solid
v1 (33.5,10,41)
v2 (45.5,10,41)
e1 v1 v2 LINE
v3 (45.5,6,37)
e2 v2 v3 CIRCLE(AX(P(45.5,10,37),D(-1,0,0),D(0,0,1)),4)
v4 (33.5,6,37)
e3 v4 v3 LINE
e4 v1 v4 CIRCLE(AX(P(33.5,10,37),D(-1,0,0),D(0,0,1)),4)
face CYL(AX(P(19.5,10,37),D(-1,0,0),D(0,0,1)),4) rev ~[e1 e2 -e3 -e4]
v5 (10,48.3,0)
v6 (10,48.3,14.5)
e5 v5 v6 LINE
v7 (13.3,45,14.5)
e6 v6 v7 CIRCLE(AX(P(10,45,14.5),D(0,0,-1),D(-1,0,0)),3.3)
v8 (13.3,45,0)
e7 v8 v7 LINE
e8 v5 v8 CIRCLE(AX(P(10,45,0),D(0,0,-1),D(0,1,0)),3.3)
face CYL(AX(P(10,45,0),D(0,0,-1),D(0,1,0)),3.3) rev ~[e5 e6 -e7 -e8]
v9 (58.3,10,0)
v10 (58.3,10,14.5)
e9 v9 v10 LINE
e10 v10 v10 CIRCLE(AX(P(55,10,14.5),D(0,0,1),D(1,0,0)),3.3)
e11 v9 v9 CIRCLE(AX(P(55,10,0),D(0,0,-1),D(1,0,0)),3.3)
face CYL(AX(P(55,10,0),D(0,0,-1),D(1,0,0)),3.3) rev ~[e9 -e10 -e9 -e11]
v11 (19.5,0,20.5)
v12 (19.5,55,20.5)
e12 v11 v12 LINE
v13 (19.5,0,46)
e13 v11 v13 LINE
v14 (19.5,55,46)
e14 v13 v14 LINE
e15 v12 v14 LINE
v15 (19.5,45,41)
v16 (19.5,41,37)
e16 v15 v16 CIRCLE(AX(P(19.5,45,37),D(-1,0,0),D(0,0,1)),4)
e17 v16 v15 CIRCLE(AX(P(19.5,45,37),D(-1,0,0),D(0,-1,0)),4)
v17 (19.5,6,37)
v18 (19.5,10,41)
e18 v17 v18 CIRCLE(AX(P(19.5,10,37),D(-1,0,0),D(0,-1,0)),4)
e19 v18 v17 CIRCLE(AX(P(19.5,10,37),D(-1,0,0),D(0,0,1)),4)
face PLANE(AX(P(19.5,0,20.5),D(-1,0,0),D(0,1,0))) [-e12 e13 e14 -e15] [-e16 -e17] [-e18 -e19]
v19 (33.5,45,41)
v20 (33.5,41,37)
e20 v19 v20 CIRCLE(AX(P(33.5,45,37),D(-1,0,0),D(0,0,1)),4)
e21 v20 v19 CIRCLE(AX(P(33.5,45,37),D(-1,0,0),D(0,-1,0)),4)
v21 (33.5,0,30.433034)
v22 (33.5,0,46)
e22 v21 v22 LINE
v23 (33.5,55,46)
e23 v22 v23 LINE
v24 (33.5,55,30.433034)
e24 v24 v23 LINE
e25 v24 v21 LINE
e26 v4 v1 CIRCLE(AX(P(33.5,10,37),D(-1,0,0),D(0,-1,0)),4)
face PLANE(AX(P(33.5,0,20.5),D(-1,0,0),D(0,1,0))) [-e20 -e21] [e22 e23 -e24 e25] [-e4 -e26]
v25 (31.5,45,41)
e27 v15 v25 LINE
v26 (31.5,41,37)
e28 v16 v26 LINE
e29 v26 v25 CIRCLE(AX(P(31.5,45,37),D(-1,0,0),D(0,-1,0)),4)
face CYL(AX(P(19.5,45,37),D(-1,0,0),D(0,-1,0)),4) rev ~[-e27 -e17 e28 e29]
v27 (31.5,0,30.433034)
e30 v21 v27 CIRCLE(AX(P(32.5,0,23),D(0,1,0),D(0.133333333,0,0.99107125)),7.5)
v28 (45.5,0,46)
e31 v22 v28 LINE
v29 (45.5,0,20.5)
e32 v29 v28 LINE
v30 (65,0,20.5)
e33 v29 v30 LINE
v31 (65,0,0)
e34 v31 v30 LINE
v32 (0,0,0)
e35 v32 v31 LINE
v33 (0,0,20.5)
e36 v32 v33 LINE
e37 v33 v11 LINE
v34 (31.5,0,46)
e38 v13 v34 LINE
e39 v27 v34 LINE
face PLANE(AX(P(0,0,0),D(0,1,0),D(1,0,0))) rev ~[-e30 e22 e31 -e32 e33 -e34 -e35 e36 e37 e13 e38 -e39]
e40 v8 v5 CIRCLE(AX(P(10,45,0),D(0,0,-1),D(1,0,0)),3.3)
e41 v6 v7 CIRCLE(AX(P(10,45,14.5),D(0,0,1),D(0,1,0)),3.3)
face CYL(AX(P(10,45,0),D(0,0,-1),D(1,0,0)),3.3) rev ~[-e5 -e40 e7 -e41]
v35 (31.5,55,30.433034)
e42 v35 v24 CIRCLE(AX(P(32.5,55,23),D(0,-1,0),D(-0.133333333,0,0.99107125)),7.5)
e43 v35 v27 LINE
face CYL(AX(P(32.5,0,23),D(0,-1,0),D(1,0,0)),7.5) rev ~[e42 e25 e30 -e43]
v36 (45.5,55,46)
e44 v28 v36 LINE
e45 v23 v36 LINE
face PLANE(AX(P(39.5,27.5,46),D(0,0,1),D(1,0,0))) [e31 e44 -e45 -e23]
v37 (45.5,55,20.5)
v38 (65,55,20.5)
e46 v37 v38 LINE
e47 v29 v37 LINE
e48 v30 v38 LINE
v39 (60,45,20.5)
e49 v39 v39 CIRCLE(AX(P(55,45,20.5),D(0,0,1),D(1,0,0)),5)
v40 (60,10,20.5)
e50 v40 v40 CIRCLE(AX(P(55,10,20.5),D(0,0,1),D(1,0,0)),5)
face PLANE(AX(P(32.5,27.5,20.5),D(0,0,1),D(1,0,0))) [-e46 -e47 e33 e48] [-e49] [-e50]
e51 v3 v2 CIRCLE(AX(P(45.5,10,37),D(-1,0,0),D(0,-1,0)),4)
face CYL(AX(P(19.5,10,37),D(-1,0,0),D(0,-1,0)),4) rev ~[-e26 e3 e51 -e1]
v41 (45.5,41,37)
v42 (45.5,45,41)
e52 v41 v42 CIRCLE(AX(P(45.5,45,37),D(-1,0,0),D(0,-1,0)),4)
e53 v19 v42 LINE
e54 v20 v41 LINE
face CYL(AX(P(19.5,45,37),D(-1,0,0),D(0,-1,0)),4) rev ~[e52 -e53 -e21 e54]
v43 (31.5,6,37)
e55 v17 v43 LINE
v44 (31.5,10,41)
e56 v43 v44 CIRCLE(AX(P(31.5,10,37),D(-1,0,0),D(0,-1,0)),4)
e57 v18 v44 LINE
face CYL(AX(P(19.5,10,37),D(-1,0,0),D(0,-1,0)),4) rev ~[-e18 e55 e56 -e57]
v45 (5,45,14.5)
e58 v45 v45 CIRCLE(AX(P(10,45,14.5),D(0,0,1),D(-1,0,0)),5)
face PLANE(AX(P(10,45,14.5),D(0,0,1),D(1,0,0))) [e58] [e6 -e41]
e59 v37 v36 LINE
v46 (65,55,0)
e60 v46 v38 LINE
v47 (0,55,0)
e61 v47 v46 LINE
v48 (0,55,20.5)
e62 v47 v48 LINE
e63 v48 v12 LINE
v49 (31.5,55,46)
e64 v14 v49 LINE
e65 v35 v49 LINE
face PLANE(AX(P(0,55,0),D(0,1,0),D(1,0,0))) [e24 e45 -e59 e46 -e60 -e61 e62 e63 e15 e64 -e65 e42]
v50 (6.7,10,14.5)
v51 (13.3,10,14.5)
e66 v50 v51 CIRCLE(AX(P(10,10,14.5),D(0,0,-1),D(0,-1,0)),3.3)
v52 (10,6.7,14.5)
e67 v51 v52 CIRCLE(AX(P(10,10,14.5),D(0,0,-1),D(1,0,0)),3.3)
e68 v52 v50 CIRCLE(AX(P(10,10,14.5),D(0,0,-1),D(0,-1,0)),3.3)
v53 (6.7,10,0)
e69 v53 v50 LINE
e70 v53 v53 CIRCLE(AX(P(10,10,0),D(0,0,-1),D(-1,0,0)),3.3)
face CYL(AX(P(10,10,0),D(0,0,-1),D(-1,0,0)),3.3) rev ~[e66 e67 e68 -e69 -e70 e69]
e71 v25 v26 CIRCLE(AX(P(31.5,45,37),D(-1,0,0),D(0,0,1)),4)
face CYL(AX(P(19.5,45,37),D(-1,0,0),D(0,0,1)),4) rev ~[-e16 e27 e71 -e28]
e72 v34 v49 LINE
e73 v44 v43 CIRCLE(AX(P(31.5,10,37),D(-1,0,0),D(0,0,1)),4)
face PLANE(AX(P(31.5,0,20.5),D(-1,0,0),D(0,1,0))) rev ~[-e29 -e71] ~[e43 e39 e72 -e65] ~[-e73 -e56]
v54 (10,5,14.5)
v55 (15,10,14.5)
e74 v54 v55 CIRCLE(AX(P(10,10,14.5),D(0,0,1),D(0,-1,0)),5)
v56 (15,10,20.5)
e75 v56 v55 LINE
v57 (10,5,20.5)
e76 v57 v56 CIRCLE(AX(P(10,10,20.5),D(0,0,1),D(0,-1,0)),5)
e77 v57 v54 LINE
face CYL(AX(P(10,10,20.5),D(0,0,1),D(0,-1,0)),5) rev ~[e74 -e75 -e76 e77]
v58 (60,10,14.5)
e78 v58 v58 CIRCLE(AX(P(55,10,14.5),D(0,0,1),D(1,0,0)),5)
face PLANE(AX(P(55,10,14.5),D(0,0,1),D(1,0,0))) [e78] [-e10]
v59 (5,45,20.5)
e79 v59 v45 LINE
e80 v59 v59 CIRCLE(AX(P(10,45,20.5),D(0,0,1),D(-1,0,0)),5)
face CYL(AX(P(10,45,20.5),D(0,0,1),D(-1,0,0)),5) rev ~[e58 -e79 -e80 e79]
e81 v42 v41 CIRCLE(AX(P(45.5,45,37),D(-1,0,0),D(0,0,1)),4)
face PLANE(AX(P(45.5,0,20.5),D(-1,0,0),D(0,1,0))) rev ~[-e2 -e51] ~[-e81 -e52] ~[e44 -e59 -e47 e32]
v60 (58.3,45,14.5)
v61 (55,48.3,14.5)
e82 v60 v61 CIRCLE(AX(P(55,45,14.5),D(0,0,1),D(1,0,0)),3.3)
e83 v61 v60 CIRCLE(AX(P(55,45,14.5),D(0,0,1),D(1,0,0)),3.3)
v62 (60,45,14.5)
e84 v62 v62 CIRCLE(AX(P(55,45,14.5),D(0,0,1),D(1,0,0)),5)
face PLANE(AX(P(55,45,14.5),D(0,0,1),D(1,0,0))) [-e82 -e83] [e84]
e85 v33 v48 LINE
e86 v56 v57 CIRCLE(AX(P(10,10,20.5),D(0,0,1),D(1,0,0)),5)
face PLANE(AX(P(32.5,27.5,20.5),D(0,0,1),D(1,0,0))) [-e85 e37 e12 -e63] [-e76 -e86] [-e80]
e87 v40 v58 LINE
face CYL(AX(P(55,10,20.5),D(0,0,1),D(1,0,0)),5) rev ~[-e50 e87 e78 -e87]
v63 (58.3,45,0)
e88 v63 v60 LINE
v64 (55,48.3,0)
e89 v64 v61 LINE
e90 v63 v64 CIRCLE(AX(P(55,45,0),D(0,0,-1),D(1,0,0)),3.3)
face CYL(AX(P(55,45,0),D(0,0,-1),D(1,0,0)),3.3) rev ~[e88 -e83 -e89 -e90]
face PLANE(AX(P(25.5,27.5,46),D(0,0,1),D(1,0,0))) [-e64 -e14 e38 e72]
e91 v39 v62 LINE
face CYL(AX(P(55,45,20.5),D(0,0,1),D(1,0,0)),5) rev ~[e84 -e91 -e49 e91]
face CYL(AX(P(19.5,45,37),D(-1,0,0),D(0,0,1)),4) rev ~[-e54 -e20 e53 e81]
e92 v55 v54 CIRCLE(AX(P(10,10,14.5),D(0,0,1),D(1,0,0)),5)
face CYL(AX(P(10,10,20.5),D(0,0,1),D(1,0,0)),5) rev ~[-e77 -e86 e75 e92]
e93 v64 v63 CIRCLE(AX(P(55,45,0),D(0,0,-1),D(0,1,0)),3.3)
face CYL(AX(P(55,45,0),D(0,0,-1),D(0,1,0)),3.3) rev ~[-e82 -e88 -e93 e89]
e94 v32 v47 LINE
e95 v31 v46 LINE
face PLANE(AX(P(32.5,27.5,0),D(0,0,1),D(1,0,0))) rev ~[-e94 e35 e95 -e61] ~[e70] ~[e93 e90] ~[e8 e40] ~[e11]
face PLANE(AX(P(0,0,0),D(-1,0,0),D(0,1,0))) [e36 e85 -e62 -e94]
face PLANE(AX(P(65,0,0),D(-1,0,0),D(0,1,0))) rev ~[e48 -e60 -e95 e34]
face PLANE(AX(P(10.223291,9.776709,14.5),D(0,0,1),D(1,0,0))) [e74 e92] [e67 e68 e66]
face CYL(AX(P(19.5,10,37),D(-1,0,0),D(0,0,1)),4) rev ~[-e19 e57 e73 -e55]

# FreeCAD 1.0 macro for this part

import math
import FreeCAD as App
import Part
import Sketcher
from FreeCAD import Vector
Q = App.Units.Quantity

doc = App.newDocument("Part")
body = doc.addObject("PartDesign::Body", "Body")

# Sketch on XY plane
sketch1 = doc.addObject("Sketcher::SketchObject", "Sketch")
body.addObject(sketch1)
sketch1.AttachmentSupport = (doc.XY_Plane, [""])
sketch1.MapMode = "FlatFace"
sketch1.addGeometry([
    Part.LineSegment(Vector(0, 55, 0), Vector(0, 0, 0)),
    Part.LineSegment(Vector(0, 0, 0), Vector(65, 0, 0)),
    Part.LineSegment(Vector(65, 0, 0), Vector(65, 55, 0)),
    Part.LineSegment(Vector(65, 55, 0), Vector(0, 55, 0)),
], False)
sketch1.addConstraint([
    Sketcher.Constraint("Coincident", 0, 2, 1, 1),
    Sketcher.Constraint("Coincident", 1, 2, 2, 1),
    Sketcher.Constraint("Coincident", 2, 2, 3, 1),
    Sketcher.Constraint("Coincident", 3, 2, 0, 1),
    Sketcher.Constraint("Vertical", 0),
    Sketcher.Constraint("Horizontal", 1),
    Sketcher.Constraint("Vertical", 2),
    Sketcher.Constraint("Horizontal", 3),
    Sketcher.Constraint("Coincident", 0, 2, -1, 1),
    Sketcher.Constraint("DistanceX", 1, 1, 1, 2, Q("65 mm")),
    Sketcher.Constraint("DistanceY", 0, 2, 0, 1, Q("55 mm")),
])
pad1 = doc.addObject("PartDesign::Pad", "Pad")
body.addObject(pad1)
pad1.Profile = sketch1
pad1.Length = 20.5

# Sketch on XY plane
sketch2 = doc.addObject("Sketcher::SketchObject", "Sketch001")
body.addObject(sketch2)
sketch2.AttachmentSupport = (doc.XY_Plane, [""])
sketch2.MapMode = "FlatFace"
sketch2.AttachmentOffset = App.Placement(Vector(0, 0, 20.5), App.Rotation())
sketch2.addGeometry([
    Part.LineSegment(Vector(20, 55, 0), Vector(20, 0, 0)),  # 0
    Part.LineSegment(Vector(20, 0, 0), Vector(32, 0, 0)),  # 1
    Part.LineSegment(Vector(32, 0, 0), Vector(32, 55, 0)),  # 2
    Part.LineSegment(Vector(32, 55, 0), Vector(20, 55, 0)),  # 3
    Part.LineSegment(Vector(34, 55, 0), Vector(34, 0, 0)),  # 4
    Part.LineSegment(Vector(34, 0, 0), Vector(46, 0, 0)),  # 5
    Part.LineSegment(Vector(46, 0, 0), Vector(46, 55, 0)),  # 6
    Part.LineSegment(Vector(46, 55, 0), Vector(34, 55, 0)),  # 7
], False)
sketch2.addConstraint([
    Sketcher.Constraint("Coincident", 0, 2, 1, 1),
    Sketcher.Constraint("Coincident", 1, 2, 2, 1),
    Sketcher.Constraint("Coincident", 2, 2, 3, 1),
    Sketcher.Constraint("Coincident", 3, 2, 0, 1),
    Sketcher.Constraint("Coincident", 4, 2, 5, 1),
    Sketcher.Constraint("Coincident", 5, 2, 6, 1),
    Sketcher.Constraint("Coincident", 6, 2, 7, 1),
    Sketcher.Constraint("Coincident", 7, 2, 4, 1),
    Sketcher.Constraint("Vertical", 0),
    Sketcher.Constraint("Horizontal", 1),
    Sketcher.Constraint("Vertical", 2),
    Sketcher.Constraint("Horizontal", 3),
    Sketcher.Constraint("Vertical", 4),
    Sketcher.Constraint("Horizontal", 5),
    Sketcher.Constraint("Vertical", 6),
    Sketcher.Constraint("Horizontal", 7),
    Sketcher.Constraint("PointOnObject", 0, 2, -1),
    Sketcher.Constraint("PointOnObject", 4, 2, -1),
    Sketcher.Constraint("Horizontal", 3, 2, 6, 2),
    Sketcher.Constraint("Equal", 3, 5),
    Sketcher.Constraint("DistanceX", 1, 1, 1, 2, Q("12 mm")),
    Sketcher.Constraint("DistanceY", 0, 2, 0, 1, Q("55 mm")),
    Sketcher.Constraint("DistanceX", 1, 2, 4, 2, Q("2 mm")),
    Sketcher.Constraint("DistanceX", -1, 1, 0, 2, Q("19.5 mm")),
])
pad2 = doc.addObject("PartDesign::Pad", "Pad001")
body.addObject(pad2)
pad2.Profile = sketch2
pad2.Length = 25.5

# Sketch on XZ plane
sketch3 = doc.addObject("Sketcher::SketchObject", "Sketch002")
body.addObject(sketch3)
sketch3.AttachmentSupport = (doc.XZ_Plane, [""])
sketch3.MapMode = "FlatFace"
sketch3.addGeometry(Part.Circle(Vector(32, 23, 0), Vector(0, 0, 1), 8), False)
sketch3.addConstraint([
    Sketcher.Constraint("Diameter", 0, Q("15 mm")),
    Sketcher.Constraint("DistanceY", -1, 1, 0, 3, Q("23 mm")),
    Sketcher.Constraint("DistanceX", -1, 1, 0, 3, Q("32.5 mm")),
])
pocket1 = doc.addObject("PartDesign::Pocket", "Pocket")
body.addObject(pocket1)
pocket1.Profile = sketch3
pocket1.Length = 74.8

# Sketch on YZ plane
sketch4 = doc.addObject("Sketcher::SketchObject", "Sketch003")
body.addObject(sketch4)
sketch4.AttachmentSupport = (doc.YZ_Plane, [""])
sketch4.MapMode = "FlatFace"
sketch4.AttachmentOffset = App.Placement(Vector(0, 0, 19.5), App.Rotation())
sketch4.addGeometry([
    Part.ArcOfCircle(Part.Circle(Vector(45, 37, 0), Vector(0, 0, 1), 4), math.radians(180), math.radians(450)),
    Part.ArcOfCircle(Part.Circle(Vector(45, 37, 0), Vector(0, 0, 1), 4), math.radians(90), math.radians(180)),
    Part.ArcOfCircle(Part.Circle(Vector(10, 37, 0), Vector(0, 0, 1), 4), math.radians(180), math.radians(450)),
    Part.ArcOfCircle(Part.Circle(Vector(10, 37, 0), Vector(0, 0, 1), 4), math.radians(90), math.radians(180)),
], False)
sketch4.addConstraint([
    Sketcher.Constraint("Tangent", 0, 1, 1, 2),
    Sketcher.Constraint("Coincident", 1, 1, 0, 2),
    Sketcher.Constraint("Tangent", 2, 1, 3, 2),
    Sketcher.Constraint("Coincident", 3, 1, 2, 2),
    Sketcher.Constraint("Equal", 1, 2),
    Sketcher.Constraint("Horizontal", 1, 3, 2, 3),
    Sketcher.Constraint("Horizontal", 3, 3, 0, 1),
    Sketcher.Constraint("Horizontal", 0, 1, 2, 1),
    Sketcher.Constraint("Vertical", 0, 3, 1, 1),
    Sketcher.Constraint("Vertical", 2, 3, 3, 1),
    Sketcher.Constraint("Radius", 0, Q("4 mm")),
    Sketcher.Constraint("DistanceX", -1, 1, 0, 3, Q("45 mm")),
    Sketcher.Constraint("DistanceY", -1, 1, 0, 3, Q("37 mm")),
    Sketcher.Constraint("DistanceX", -1, 1, 2, 3, Q("10 mm")),
])
pocket2 = doc.addObject("PartDesign::Pocket", "Pocket001")
body.addObject(pocket2)
pocket2.Profile = sketch4
pocket2.Length = 37.2
pocket2.Reversed = True

# Sketch on XY plane
sketch5 = doc.addObject("Sketcher::SketchObject", "Sketch004")
body.addObject(sketch5)
sketch5.AttachmentSupport = (doc.XY_Plane, [""])
sketch5.MapMode = "FlatFace"
sketch5.AttachmentOffset = App.Placement(Vector(0, 0, 20.5), App.Rotation())
sketch5.addGeometry([
    Part.Circle(Vector(55, 45, 0), Vector(0, 0, 1), 5),  # 0
    Part.Circle(Vector(55, 45, 0), Vector(0, 0, 1), 3.3),  # 1
    Part.Circle(Vector(10, 45, 0), Vector(0, 0, 1), 5),  # 2
    Part.Circle(Vector(10, 45, 0), Vector(0, 0, 1), 3.3),  # 3
    Part.ArcOfCircle(Part.Circle(Vector(10, 10, 0), Vector(0, 0, 1), 5), math.radians(0), math.radians(270)),  # 4
    Part.ArcOfCircle(Part.Circle(Vector(10, 10, 0), Vector(0, 0, 1), 5), math.radians(-90), math.radians(0)),  # 5
    Part.ArcOfCircle(Part.Circle(Vector(10, 10, 0), Vector(0, 0, 1), 3.3), math.radians(0), math.radians(270)),  # 6
    Part.ArcOfCircle(Part.Circle(Vector(10, 10, 0), Vector(0, 0, 1), 3.3), math.radians(-90), math.radians(0)),  # 7
    Part.Circle(Vector(55, 10, 0), Vector(0, 0, 1), 5),  # 8
    Part.Circle(Vector(55, 10, 0), Vector(0, 0, 1), 3.3),  # 9
], False)
sketch5.addConstraint([
    Sketcher.Constraint("Tangent", 4, 1, 5, 2),
    Sketcher.Constraint("Coincident", 5, 1, 4, 2),
    Sketcher.Constraint("Tangent", 6, 1, 7, 2),
    Sketcher.Constraint("Coincident", 7, 1, 6, 2),
    Sketcher.Constraint("Coincident", 1, 3, 0, 3),
    Sketcher.Constraint("Coincident", 3, 3, 2, 3),
    Sketcher.Constraint("Coincident", 6, 3, 4, 3),
    Sketcher.Constraint("Coincident", 9, 3, 8, 3),
    Sketcher.Constraint("Equal", 0, 2),
    Sketcher.Constraint("Equal", 1, 3),
    Sketcher.Constraint("Equal", 2, 4),
    Sketcher.Constraint("Equal", 3, 6),
    Sketcher.Constraint("Equal", 5, 8),
    Sketcher.Constraint("Equal", 7, 9),
    Sketcher.Constraint("Horizontal", 1, 3, 2, 3),
    Sketcher.Constraint("Horizontal", 7, 3, 8, 3),
    Sketcher.Constraint("Horizontal", 9, 3, 4, 1),
    Sketcher.Constraint("Horizontal", 4, 1, 6, 1),
    Sketcher.Constraint("Vertical", 3, 3, 4, 3),
    Sketcher.Constraint("Vertical", 1, 3, 8, 3),
    Sketcher.Constraint("Vertical", 7, 3, 5, 1),
    Sketcher.Constraint("Vertical", 5, 1, 7, 1),
    Sketcher.Constraint("Diameter", 0, Q("10 mm")),
    Sketcher.Constraint("Diameter", 1, Q("6.6 mm")),
    Sketcher.Constraint("DistanceX", -1, 1, 0, 3, Q("55 mm")),
    Sketcher.Constraint("DistanceY", -1, 1, 0, 3, Q("45 mm")),
    Sketcher.Constraint("DistanceX", -1, 1, 2, 3, Q("10 mm")),
    Sketcher.Constraint("DistanceY", -1, 1, 4, 3, Q("10 mm")),
])
pocket3 = doc.addObject("PartDesign::Pocket", "Pocket002")
body.addObject(pocket3)
pocket3.Profile = sketch5
pocket3.Length = 6

# Sketch on XY plane
sketch6 = doc.addObject("Sketcher::SketchObject", "Sketch005")
body.addObject(sketch6)
sketch6.AttachmentSupport = (doc.XY_Plane, [""])
sketch6.MapMode = "FlatFace"
sketch6.addGeometry([
    Part.ArcOfCircle(Part.Circle(Vector(10, 45, 0), Vector(0, 0, 1), 3.3), math.radians(90), math.radians(360)),  # 0
    Part.ArcOfCircle(Part.Circle(Vector(10, 45, 0), Vector(0, 0, 1), 3.3), math.radians(0), math.radians(90)),  # 1
    Part.ArcOfCircle(Part.Circle(Vector(55, 45, 0), Vector(0, 0, 1), 3.3), math.radians(90), math.radians(360)),  # 2
    Part.ArcOfCircle(Part.Circle(Vector(55, 45, 0), Vector(0, 0, 1), 3.3), math.radians(0), math.radians(90)),  # 3
    Part.Circle(Vector(55, 10, 0), Vector(0, 0, 1), 3.3),  # 4
    Part.Circle(Vector(10, 10, 0), Vector(0, 0, 1), 3.3),  # 5
], False)
sketch6.addConstraint([
    Sketcher.Constraint("Tangent", 0, 1, 1, 2),
    Sketcher.Constraint("Coincident", 1, 1, 0, 2),
    Sketcher.Constraint("Tangent", 2, 1, 3, 2),
    Sketcher.Constraint("Coincident", 3, 1, 2, 2),
    Sketcher.Constraint("Equal", 1, 2),
    Sketcher.Constraint("Equal", 3, 4),
    Sketcher.Constraint("Equal", 4, 5),
    Sketcher.Constraint("Horizontal", 1, 3, 2, 3),
    Sketcher.Constraint("Horizontal", 4, 3, 5, 3),
    Sketcher.Constraint("Horizontal", 3, 3, 1, 1),
    Sketcher.Constraint("Horizontal", 1, 1, 3, 1),
    Sketcher.Constraint("Vertical", 3, 3, 4, 3),
    Sketcher.Constraint("Vertical", 1, 3, 5, 3),
    Sketcher.Constraint("Vertical", 5, 3, 0, 1),
    Sketcher.Constraint("Vertical", 4, 3, 2, 1),
    Sketcher.Constraint("Diameter", 4, Q("6.6 mm")),
    Sketcher.Constraint("DistanceX", -1, 1, 0, 3, Q("10 mm")),
    Sketcher.Constraint("DistanceY", -1, 1, 0, 3, Q("45 mm")),
    Sketcher.Constraint("DistanceX", -1, 1, 2, 3, Q("55 mm")),
    Sketcher.Constraint("DistanceY", -1, 1, 4, 3, Q("10 mm")),
])
pocket4 = doc.addObject("PartDesign::Pocket", "Pocket003")
body.addObject(pocket4)
pocket4.Profile = sketch6
pocket4.Length = 45.5
pocket4.Reversed = True

doc.recompute()
